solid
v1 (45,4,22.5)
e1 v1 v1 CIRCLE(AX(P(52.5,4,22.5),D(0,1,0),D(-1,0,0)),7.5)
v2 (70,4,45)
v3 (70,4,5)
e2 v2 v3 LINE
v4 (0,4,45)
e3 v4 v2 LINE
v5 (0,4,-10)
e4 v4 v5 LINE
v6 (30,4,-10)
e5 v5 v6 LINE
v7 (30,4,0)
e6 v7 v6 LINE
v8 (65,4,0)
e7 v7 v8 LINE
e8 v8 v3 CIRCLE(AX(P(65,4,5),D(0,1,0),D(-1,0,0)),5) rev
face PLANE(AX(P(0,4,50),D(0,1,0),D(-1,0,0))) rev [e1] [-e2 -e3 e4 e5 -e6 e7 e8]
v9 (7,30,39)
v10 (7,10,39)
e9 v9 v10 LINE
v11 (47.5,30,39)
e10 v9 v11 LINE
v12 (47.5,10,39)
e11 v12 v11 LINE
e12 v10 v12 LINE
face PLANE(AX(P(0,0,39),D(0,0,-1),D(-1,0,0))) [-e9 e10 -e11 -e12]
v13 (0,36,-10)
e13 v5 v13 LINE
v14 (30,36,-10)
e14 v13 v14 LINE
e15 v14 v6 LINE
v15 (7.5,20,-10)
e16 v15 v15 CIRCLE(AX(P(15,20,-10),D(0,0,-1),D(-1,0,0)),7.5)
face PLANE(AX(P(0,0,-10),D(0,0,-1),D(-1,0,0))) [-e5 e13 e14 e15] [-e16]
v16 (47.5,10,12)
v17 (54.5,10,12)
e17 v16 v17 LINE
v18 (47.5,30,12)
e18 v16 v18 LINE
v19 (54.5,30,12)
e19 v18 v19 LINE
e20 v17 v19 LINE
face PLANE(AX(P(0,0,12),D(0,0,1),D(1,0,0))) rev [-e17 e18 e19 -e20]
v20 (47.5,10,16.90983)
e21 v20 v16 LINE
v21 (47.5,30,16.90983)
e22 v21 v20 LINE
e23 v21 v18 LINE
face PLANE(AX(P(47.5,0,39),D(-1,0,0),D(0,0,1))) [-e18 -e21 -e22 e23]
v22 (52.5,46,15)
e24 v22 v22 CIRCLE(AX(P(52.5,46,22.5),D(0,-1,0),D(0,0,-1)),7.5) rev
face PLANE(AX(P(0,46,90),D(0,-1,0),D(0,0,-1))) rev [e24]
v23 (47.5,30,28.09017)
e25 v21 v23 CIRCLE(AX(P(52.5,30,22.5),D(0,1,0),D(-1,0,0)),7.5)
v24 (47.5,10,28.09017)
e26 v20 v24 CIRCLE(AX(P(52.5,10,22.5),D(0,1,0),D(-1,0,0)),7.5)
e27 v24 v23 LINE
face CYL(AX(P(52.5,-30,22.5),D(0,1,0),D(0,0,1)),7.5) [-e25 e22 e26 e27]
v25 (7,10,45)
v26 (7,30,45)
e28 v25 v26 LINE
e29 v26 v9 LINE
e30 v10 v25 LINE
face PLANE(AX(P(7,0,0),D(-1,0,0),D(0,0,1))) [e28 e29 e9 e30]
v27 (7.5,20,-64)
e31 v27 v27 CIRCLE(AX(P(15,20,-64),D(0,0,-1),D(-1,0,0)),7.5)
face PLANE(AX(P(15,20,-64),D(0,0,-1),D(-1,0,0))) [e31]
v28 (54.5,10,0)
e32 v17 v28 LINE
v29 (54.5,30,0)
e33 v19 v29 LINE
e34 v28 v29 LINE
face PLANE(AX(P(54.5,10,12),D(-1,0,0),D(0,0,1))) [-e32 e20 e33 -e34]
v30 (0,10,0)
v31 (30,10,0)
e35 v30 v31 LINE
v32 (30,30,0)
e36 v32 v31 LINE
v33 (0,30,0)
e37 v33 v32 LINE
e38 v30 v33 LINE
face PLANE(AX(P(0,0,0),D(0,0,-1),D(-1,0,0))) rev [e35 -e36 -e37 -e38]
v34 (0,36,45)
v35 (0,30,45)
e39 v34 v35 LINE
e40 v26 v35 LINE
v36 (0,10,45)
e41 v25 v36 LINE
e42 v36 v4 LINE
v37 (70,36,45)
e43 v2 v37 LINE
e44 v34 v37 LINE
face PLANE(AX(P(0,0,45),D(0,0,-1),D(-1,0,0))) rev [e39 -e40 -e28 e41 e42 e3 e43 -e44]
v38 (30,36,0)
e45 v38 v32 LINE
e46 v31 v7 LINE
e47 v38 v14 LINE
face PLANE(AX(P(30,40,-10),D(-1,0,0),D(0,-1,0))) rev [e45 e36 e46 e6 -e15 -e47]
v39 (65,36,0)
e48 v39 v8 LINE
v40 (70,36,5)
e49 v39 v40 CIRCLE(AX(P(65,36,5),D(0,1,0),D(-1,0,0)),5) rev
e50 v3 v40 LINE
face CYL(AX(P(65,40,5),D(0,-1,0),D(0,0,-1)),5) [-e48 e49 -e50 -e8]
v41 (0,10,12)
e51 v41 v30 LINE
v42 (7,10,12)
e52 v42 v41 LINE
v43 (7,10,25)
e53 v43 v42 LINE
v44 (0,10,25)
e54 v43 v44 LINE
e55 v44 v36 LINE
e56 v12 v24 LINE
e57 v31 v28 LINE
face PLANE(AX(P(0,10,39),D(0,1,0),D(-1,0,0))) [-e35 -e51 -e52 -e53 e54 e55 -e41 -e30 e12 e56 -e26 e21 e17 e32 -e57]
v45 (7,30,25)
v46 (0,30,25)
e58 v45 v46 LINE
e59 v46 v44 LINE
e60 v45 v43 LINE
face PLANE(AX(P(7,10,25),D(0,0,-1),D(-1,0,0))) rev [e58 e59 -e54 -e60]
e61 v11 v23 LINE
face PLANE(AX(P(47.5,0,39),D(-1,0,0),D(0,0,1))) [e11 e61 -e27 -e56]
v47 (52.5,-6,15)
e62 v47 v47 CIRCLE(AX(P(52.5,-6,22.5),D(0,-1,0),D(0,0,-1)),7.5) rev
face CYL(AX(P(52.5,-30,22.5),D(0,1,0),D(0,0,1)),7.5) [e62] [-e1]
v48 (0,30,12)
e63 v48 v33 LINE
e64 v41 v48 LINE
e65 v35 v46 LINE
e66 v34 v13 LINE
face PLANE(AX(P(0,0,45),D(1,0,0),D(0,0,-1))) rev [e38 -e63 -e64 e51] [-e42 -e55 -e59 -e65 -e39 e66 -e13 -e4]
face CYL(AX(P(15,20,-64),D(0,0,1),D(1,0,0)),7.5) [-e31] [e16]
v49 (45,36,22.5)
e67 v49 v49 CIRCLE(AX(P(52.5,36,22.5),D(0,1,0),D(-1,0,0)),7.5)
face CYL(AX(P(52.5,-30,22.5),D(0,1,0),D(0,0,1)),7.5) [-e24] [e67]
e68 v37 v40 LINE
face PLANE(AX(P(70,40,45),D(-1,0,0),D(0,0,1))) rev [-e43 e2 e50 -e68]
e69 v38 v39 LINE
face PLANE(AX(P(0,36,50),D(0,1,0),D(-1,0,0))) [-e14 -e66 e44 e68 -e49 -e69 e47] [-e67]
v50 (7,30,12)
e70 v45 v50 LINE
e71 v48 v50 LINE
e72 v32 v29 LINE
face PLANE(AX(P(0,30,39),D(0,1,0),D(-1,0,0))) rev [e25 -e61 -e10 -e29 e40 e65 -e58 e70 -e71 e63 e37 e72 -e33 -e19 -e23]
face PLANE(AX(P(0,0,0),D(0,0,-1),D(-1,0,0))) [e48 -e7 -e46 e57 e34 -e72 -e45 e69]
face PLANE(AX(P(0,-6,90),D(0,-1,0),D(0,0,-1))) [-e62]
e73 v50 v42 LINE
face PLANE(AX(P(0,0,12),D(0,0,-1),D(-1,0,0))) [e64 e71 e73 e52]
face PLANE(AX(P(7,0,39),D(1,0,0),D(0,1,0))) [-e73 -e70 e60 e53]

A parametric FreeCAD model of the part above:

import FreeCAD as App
import Part
import Sketcher
from FreeCAD import Vector


def edges_at(feature, points):
    """Names of the edges that pass closest to the given points."""
    edges = feature.Shape.Edges
    near = lambda p: min(range(len(edges)), key=lambda i: edges[i].distToShape(Part.Vertex(*p))[0])
    return sorted({f"Edge{near(p) + 1}" for p in points})

doc = App.newDocument("Part")
body = doc.addObject("PartDesign::Body", "Body")
body.AllowCompound = True

# Sketch on XY plane
sketch1 = body.newObject("Sketcher::SketchObject", "Sketch")
sketch1.AttachmentSupport = (doc.getObject("XY_Plane"), [""])
sketch1.MapMode = "FlatFace"
sketch1.addGeometry(Part.LineSegment(Vector(0, 40, 0), Vector(0, 0, 0)), False)
sketch1.addGeometry(Part.LineSegment(Vector(0, 0, 0), Vector(70, 0, 0)), False)
sketch1.addGeometry(Part.LineSegment(Vector(70, 0, 0), Vector(70, 40, 0)), False)
sketch1.addGeometry(Part.LineSegment(Vector(70, 40, 0), Vector(0, 40, 0)), False)
sketch1.addConstraint(Sketcher.Constraint("Coincident", 0, 2, 1, 1))
sketch1.addConstraint(Sketcher.Constraint("Coincident", 1, 2, 2, 1))
sketch1.addConstraint(Sketcher.Constraint("Coincident", 2, 2, 3, 1))
sketch1.addConstraint(Sketcher.Constraint("Coincident", 3, 2, 0, 1))
sketch1.addConstraint(Sketcher.Constraint("Vertical", 0))
sketch1.addConstraint(Sketcher.Constraint("Horizontal", 1))
sketch1.addConstraint(Sketcher.Constraint("Vertical", 2))
sketch1.addConstraint(Sketcher.Constraint("Horizontal", 3))
sketch1.addConstraint(Sketcher.Constraint("Coincident", 0, 2, -1, 1))
sketch1.addConstraint(Sketcher.Constraint("DistanceX", 1, 1, 1, 2, 70.0))
sketch1.addConstraint(Sketcher.Constraint("DistanceY", 0, 2, 0, 1, 40.0))
pad1 = body.newObject("PartDesign::Pad", "Pad")
pad1.Profile = sketch1
pad1.Length = 45

# Sketch on XY plane
sketch2 = body.newObject("Sketcher::SketchObject", "Sketch001")
sketch2.AttachmentSupport = (doc.getObject("XY_Plane"), [""])
sketch2.MapMode = "FlatFace"
sketch2.addGeometry(Part.LineSegment(Vector(48, 30, 0), Vector(48, 10, 0)), False)
sketch2.addGeometry(Part.LineSegment(Vector(48, 10, 0), Vector(7, 10, 0)), False)
sketch2.addGeometry(Part.LineSegment(Vector(7, 10, 0), Vector(7, 30, 0)), False)
sketch2.addGeometry(Part.LineSegment(Vector(7, 30, 0), Vector(48, 30, 0)), False)
sketch2.addConstraint(Sketcher.Constraint("Coincident", 0, 2, 1, 1))
sketch2.addConstraint(Sketcher.Constraint("Coincident", 1, 2, 2, 1))
sketch2.addConstraint(Sketcher.Constraint("Coincident", 2, 2, 3, 1))
sketch2.addConstraint(Sketcher.Constraint("Coincident", 3, 2, 0, 1))
sketch2.addConstraint(Sketcher.Constraint("Vertical", 0))
sketch2.addConstraint(Sketcher.Constraint("Horizontal", 1))
sketch2.addConstraint(Sketcher.Constraint("Vertical", 2))
sketch2.addConstraint(Sketcher.Constraint("Horizontal", 3))
sketch2.addConstraint(Sketcher.Constraint("DistanceY", 0, 2, 0, 1, 20.0))
sketch2.addConstraint(Sketcher.Constraint("DistanceX", 1, 2, 1, 1, 40.5))
sketch2.addConstraint(Sketcher.Constraint("DistanceY", -1, 1, 0, 2, 10.0))
sketch2.addConstraint(Sketcher.Constraint("DistanceX", -1, 1, 1, 2, 7.0))
pocket1 = body.newObject("PartDesign::Pocket", "Pocket")
pocket1.Profile = sketch2
pocket1.Length = 39
pocket1.Reversed = True

# Sketch on XY plane
sketch3 = body.newObject("Sketcher::SketchObject", "Sketch002")
sketch3.AttachmentSupport = (doc.getObject("XY_Plane"), [""])
sketch3.MapMode = "FlatFace"
sketch3.addGeometry(Part.LineSegment(Vector(7, 30, 0), Vector(7, 10, 0)), False)
sketch3.addGeometry(Part.LineSegment(Vector(7, 10, 0), Vector(0, 10, 0)), False)
sketch3.addGeometry(Part.LineSegment(Vector(0, 10, 0), Vector(0, 30, 0)), False)
sketch3.addGeometry(Part.LineSegment(Vector(0, 30, 0), Vector(7, 30, 0)), False)
sketch3.addGeometry(Part.LineSegment(Vector(54, 30, 0), Vector(54, 10, 0)), False)
sketch3.addGeometry(Part.LineSegment(Vector(54, 10, 0), Vector(48, 10, 0)), False)
sketch3.addGeometry(Part.LineSegment(Vector(48, 10, 0), Vector(48, 30, 0)), False)
sketch3.addGeometry(Part.LineSegment(Vector(48, 30, 0), Vector(54, 30, 0)), False)
sketch3.addConstraint(Sketcher.Constraint("Coincident", 0, 2, 1, 1))
sketch3.addConstraint(Sketcher.Constraint("Coincident", 1, 2, 2, 1))
sketch3.addConstraint(Sketcher.Constraint("Coincident", 2, 2, 3, 1))
sketch3.addConstraint(Sketcher.Constraint("Coincident", 3, 2, 0, 1))
sketch3.addConstraint(Sketcher.Constraint("Coincident", 4, 2, 5, 1))
sketch3.addConstraint(Sketcher.Constraint("Coincident", 5, 2, 6, 1))
sketch3.addConstraint(Sketcher.Constraint("Coincident", 6, 2, 7, 1))
sketch3.addConstraint(Sketcher.Constraint("Coincident", 7, 2, 4, 1))
sketch3.addConstraint(Sketcher.Constraint("Vertical", 0))
sketch3.addConstraint(Sketcher.Constraint("Horizontal", 1))
sketch3.addConstraint(Sketcher.Constraint("Vertical", 2))
sketch3.addConstraint(Sketcher.Constraint("Horizontal", 3))
sketch3.addConstraint(Sketcher.Constraint("Vertical", 4))
sketch3.addConstraint(Sketcher.Constraint("Horizontal", 5))
sketch3.addConstraint(Sketcher.Constraint("Vertical", 6))
sketch3.addConstraint(Sketcher.Constraint("Horizontal", 7))
sketch3.addConstraint(Sketcher.Constraint("PointOnObject", 1, 2, -2))
sketch3.addConstraint(Sketcher.Constraint("Horizontal", 1, 2, 4, 2))
sketch3.addConstraint(Sketcher.Constraint("Horizontal", 3, 2, 6, 2))
sketch3.addConstraint(Sketcher.Constraint("Equal", 3, 5))
sketch3.addConstraint(Sketcher.Constraint("DistanceX", 1, 2, 1, 1, 7.0))
sketch3.addConstraint(Sketcher.Constraint("DistanceY", 0, 2, 0, 1, 20.0))
sketch3.addConstraint(Sketcher.Constraint("DistanceY", -1, 1, 0, 2, 10.0))
sketch3.addConstraint(Sketcher.Constraint("DistanceX", -1, 1, 4, 2, 54.5))
pocket2 = body.newObject("PartDesign::Pocket", "Pocket001")
pocket2.Profile = sketch3
pocket2.Length = 12
pocket2.Reversed = True

# Sketch on YZ plane
sketch4 = body.newObject("Sketcher::SketchObject", "Sketch003")
sketch4.AttachmentSupport = (doc.getObject("YZ_Plane"), [""])
sketch4.MapMode = "FlatFace"
sketch4.addGeometry(Part.LineSegment(Vector(30, 25, 0), Vector(10, 25, 0)), False)
sketch4.addGeometry(Part.LineSegment(Vector(10, 25, 0), Vector(10, 45, 0)), False)
sketch4.addGeometry(Part.LineSegment(Vector(10, 45, 0), Vector(30, 45, 0)), False)
sketch4.addGeometry(Part.LineSegment(Vector(30, 45, 0), Vector(30, 25, 0)), False)
sketch4.addConstraint(Sketcher.Constraint("Coincident", 0, 2, 1, 1))
sketch4.addConstraint(Sketcher.Constraint("Coincident", 1, 2, 2, 1))
sketch4.addConstraint(Sketcher.Constraint("Coincident", 2, 2, 3, 1))
sketch4.addConstraint(Sketcher.Constraint("Coincident", 3, 2, 0, 1))
sketch4.addConstraint(Sketcher.Constraint("Horizontal", 0))
sketch4.addConstraint(Sketcher.Constraint("Vertical", 1))
sketch4.addConstraint(Sketcher.Constraint("Horizontal", 2))
sketch4.addConstraint(Sketcher.Constraint("Vertical", 3))
sketch4.addConstraint(Sketcher.Constraint("Equal", 2, 1))
sketch4.addConstraint(Sketcher.Constraint("DistanceX", 0, 2, 0, 1, 20.0))
sketch4.addConstraint(Sketcher.Constraint("DistanceX", -1, 1, 0, 2, 10.0))
sketch4.addConstraint(Sketcher.Constraint("DistanceY", -1, 1, 0, 2, 25.0))
pocket3 = body.newObject("PartDesign::Pocket", "Pocket002")
pocket3.Profile = sketch4
pocket3.Length = 7
pocket3.Reversed = True

# Sketch on XZ plane
sketch5 = body.newObject("Sketcher::SketchObject", "Sketch004")
sketch5.AttachmentSupport = (doc.getObject("XZ_Plane"), [""])
sketch5.MapMode = "FlatFace"
sketch5.AttachmentOffset = App.Placement(Vector(0, 0, -40), App.Rotation())
sketch5.addGeometry(Part.Circle(Vector(52, 22, 0), Vector(0, 0, 1), 8), False)
sketch5.addConstraint(Sketcher.Constraint("Diameter", 0, 15.0))
sketch5.addConstraint(Sketcher.Constraint("DistanceX", -1, 1, 0, 3, 52.5))
sketch5.addConstraint(Sketcher.Constraint("DistanceY", -1, 1, 0, 3, 22.5))
pad2 = body.newObject("PartDesign::Pad", "Pad001")
pad2.Profile = sketch5
pad2.Length = 30
pad2.Reversed = True

# Sketch on XZ plane
sketch6 = body.newObject("Sketcher::SketchObject", "Sketch005")
sketch6.AttachmentSupport = (doc.getObject("XZ_Plane"), [""])
sketch6.MapMode = "FlatFace"
sketch6.addGeometry(Part.Circle(Vector(52, 22, 0), Vector(0, 0, 1), 8), False)
sketch6.addConstraint(Sketcher.Constraint("Diameter", 0, 15.0))
sketch6.addConstraint(Sketcher.Constraint("DistanceX", -1, 1, 0, 3, 52.5))
sketch6.addConstraint(Sketcher.Constraint("DistanceY", -1, 1, 0, 3, 22.5))
pad3 = body.newObject("PartDesign::Pad", "Pad002")
pad3.Profile = sketch6
pad3.Length = 30

# Sketch on XY plane
sketch7 = body.newObject("Sketcher::SketchObject", "Sketch006")
sketch7.AttachmentSupport = (doc.getObject("XY_Plane"), [""])
sketch7.MapMode = "FlatFace"
sketch7.addGeometry(Part.LineSegment(Vector(30, 40, 0), Vector(30, 0, 0)), False)
sketch7.addGeometry(Part.LineSegment(Vector(30, 0, 0), Vector(0, 0, 0)), False)
sketch7.addGeometry(Part.LineSegment(Vector(0, 0, 0), Vector(0, 40, 0)), False)
sketch7.addGeometry(Part.LineSegment(Vector(0, 40, 0), Vector(30, 40, 0)), False)
sketch7.addConstraint(Sketcher.Constraint("Coincident", 0, 2, 1, 1))
sketch7.addConstraint(Sketcher.Constraint("Coincident", 1, 2, 2, 1))
sketch7.addConstraint(Sketcher.Constraint("Coincident", 2, 2, 3, 1))
sketch7.addConstraint(Sketcher.Constraint("Coincident", 3, 2, 0, 1))
sketch7.addConstraint(Sketcher.Constraint("Vertical", 0))
sketch7.addConstraint(Sketcher.Constraint("Horizontal", 1))
sketch7.addConstraint(Sketcher.Constraint("Vertical", 2))
sketch7.addConstraint(Sketcher.Constraint("Horizontal", 3))
sketch7.addConstraint(Sketcher.Constraint("Coincident", 1, 2, -1, 1))
sketch7.addConstraint(Sketcher.Constraint("DistanceX", 1, 2, 1, 1, 30.0))
sketch7.addConstraint(Sketcher.Constraint("DistanceY", 0, 2, 0, 1, 40.0))
pad4 = body.newObject("PartDesign::Pad", "Pad003")
pad4.Profile = sketch7
pad4.Length = 10
pad4.Reversed = True

# Sketch on XY plane
sketch8 = body.newObject("Sketcher::SketchObject", "Sketch007")
sketch8.AttachmentSupport = (doc.getObject("XY_Plane"), [""])
sketch8.MapMode = "FlatFace"
sketch8.AttachmentOffset = App.Placement(Vector(0, 0, -10), App.Rotation())
sketch8.addGeometry(Part.Circle(Vector(15, 20, 0), Vector(0, 0, 1), 8), False)
sketch8.addConstraint(Sketcher.Constraint("Diameter", 0, 15.0))
sketch8.addConstraint(Sketcher.Constraint("DistanceX", -1, 1, 0, 3, 15.0))
sketch8.addConstraint(Sketcher.Constraint("DistanceY", -1, 1, 0, 3, 20.0))
pad5 = body.newObject("PartDesign::Pad", "Pad004")
pad5.Profile = sketch8
pad5.Length = 54
pad5.Reversed = True
doc.recompute()

fillet = body.newObject("PartDesign::Fillet", "Fillet")
fillet.Base = (pad5, edges_at(pad5, [(70, 20, 0)]))
fillet.Radius = 5

# Sketch on XY plane
sketch9 = body.newObject("Sketcher::SketchObject", "Sketch008")
sketch9.AttachmentSupport = (doc.getObject("XY_Plane"), [""])
sketch9.MapMode = "FlatFace"
sketch9.AttachmentOffset = App.Placement(Vector(0, 0, -10), App.Rotation())
sketch9.addGeometry(Part.LineSegment(Vector(72.2, 4, 0), Vector(72.2, 0, 0)), False)
sketch9.addGeometry(Part.LineSegment(Vector(72.2, 0, 0), Vector(0, 0, 0)), False)
sketch9.addGeometry(Part.LineSegment(Vector(0, 0, 0), Vector(0, 4, 0)), False)
sketch9.addGeometry(Part.LineSegment(Vector(0, 4, 0), Vector(72.2, 4, 0)), False)
sketch9.addGeometry(Part.LineSegment(Vector(72.2, 40, 0), Vector(72.2, 36, 0)), False)
sketch9.addGeometry(Part.LineSegment(Vector(72.2, 36, 0), Vector(0, 36, 0)), False)
sketch9.addGeometry(Part.LineSegment(Vector(0, 36, 0), Vector(0, 40, 0)), False)
sketch9.addGeometry(Part.LineSegment(Vector(0, 40, 0), Vector(72.2, 40, 0)), False)
sketch9.addConstraint(Sketcher.Constraint("Coincident", 0, 2, 1, 1))
sketch9.addConstraint(Sketcher.Constraint("Coincident", 1, 2, 2, 1))
sketch9.addConstraint(Sketcher.Constraint("Coincident", 2, 2, 3, 1))
sketch9.addConstraint(Sketcher.Constraint("Coincident", 3, 2, 0, 1))
sketch9.addConstraint(Sketcher.Constraint("Coincident", 4, 2, 5, 1))
sketch9.addConstraint(Sketcher.Constraint("Coincident", 5, 2, 6, 1))
sketch9.addConstraint(Sketcher.Constraint("Coincident", 6, 2, 7, 1))
sketch9.addConstraint(Sketcher.Constraint("Coincident", 7, 2, 4, 1))
sketch9.addConstraint(Sketcher.Constraint("Vertical", 0))
sketch9.addConstraint(Sketcher.Constraint("Horizontal", 1))
sketch9.addConstraint(Sketcher.Constraint("Vertical", 2))
sketch9.addConstraint(Sketcher.Constraint("Horizontal", 3))
sketch9.addConstraint(Sketcher.Constraint("Vertical", 4))
sketch9.addConstraint(Sketcher.Constraint("Horizontal", 5))
sketch9.addConstraint(Sketcher.Constraint("Vertical", 6))
sketch9.addConstraint(Sketcher.Constraint("Horizontal", 7))
sketch9.addConstraint(Sketcher.Constraint("Coincident", 1, 2, -1, 1))
sketch9.addConstraint(Sketcher.Constraint("PointOnObject", 5, 2, -2))
sketch9.addConstraint(Sketcher.Constraint("Vertical", 3, 2, 4, 2))
sketch9.addConstraint(Sketcher.Constraint("Equal", 2, 4))
sketch9.addConstraint(Sketcher.Constraint("DistanceY", 0, 2, 0, 1, 4.0))
sketch9.addConstraint(Sketcher.Constraint("DistanceY", -1, 1, 4, 2, 36.0))
sketch9.addConstraint(Sketcher.Constraint("DistanceX", 1, 2, 1, 1, 72.231434))
pocket4 = body.newObject("PartDesign::Pocket", "Pocket003")
pocket4.Profile = sketch9
pocket4.Length = 60
pocket4.Reversed = True

# Sketch on XZ plane
sketch10 = body.newObject("Sketcher::SketchObject", "Sketch009")
sketch10.AttachmentSupport = (doc.getObject("XZ_Plane"), [""])
sketch10.MapMode = "FlatFace"
sketch10.AttachmentOffset = App.Placement(Vector(0, 0, -70), App.Rotation())
sketch10.addGeometry(Part.Circle(Vector(52, 22, 0), Vector(0, 0, 1), 8), False)
sketch10.addConstraint(Sketcher.Constraint("Diameter", 0, 15.0))
sketch10.addConstraint(Sketcher.Constraint("DistanceX", -1, 1, 0, 3, 52.5))
sketch10.addConstraint(Sketcher.Constraint("DistanceY", -1, 1, 0, 3, 22.5))
pad6 = body.newObject("PartDesign::Pad", "Pad005")
pad6.Profile = sketch10
pad6.Length = 100

# Sketch on XY plane
sketch11 = body.newObject("Sketcher::SketchObject", "Sketch010")
sketch11.AttachmentSupport = (doc.getObject("XY_Plane"), [""])
sketch11.MapMode = "FlatFace"
sketch11.AttachmentOffset = App.Placement(Vector(0, 0, -10), App.Rotation())
sketch11.addGeometry(Part.LineSegment(Vector(76, -6, 0), Vector(76, -46, 0)), False)
sketch11.addGeometry(Part.LineSegment(Vector(76, -46, 0), Vector(0, -46, 0)), False)
sketch11.addGeometry(Part.LineSegment(Vector(0, -46, 0), Vector(0, -6, 0)), False)
sketch11.addGeometry(Part.LineSegment(Vector(0, -6, 0), Vector(76, -6, 0)), False)
sketch11.addGeometry(Part.LineSegment(Vector(76, 86, 0), Vector(76, 46, 0)), False)
sketch11.addGeometry(Part.LineSegment(Vector(76, 46, 0), Vector(0, 46, 0)), False)
sketch11.addGeometry(Part.LineSegment(Vector(0, 46, 0), Vector(0, 86, 0)), False)
sketch11.addGeometry(Part.LineSegment(Vector(0, 86, 0), Vector(76, 86, 0)), False)
sketch11.addConstraint(Sketcher.Constraint("Coincident", 0, 2, 1, 1))
sketch11.addConstraint(Sketcher.Constraint("Coincident", 1, 2, 2, 1))
sketch11.addConstraint(Sketcher.Constraint("Coincident", 2, 2, 3, 1))
sketch11.addConstraint(Sketcher.Constraint("Coincident", 3, 2, 0, 1))
sketch11.addConstraint(Sketcher.Constraint("Coincident", 4, 2, 5, 1))
sketch11.addConstraint(Sketcher.Constraint("Coincident", 5, 2, 6, 1))
sketch11.addConstraint(Sketcher.Constraint("Coincident", 6, 2, 7, 1))
sketch11.addConstraint(Sketcher.Constraint("Coincident", 7, 2, 4, 1))
sketch11.addConstraint(Sketcher.Constraint("Vertical", 0))
sketch11.addConstraint(Sketcher.Constraint("Horizontal", 1))
sketch11.addConstraint(Sketcher.Constraint("Vertical", 2))
sketch11.addConstraint(Sketcher.Constraint("Horizontal", 3))
sketch11.addConstraint(Sketcher.Constraint("Vertical", 4))
sketch11.addConstraint(Sketcher.Constraint("Horizontal", 5))
sketch11.addConstraint(Sketcher.Constraint("Vertical", 6))
sketch11.addConstraint(Sketcher.Constraint("Horizontal", 7))
sketch11.addConstraint(Sketcher.Constraint("PointOnObject", 1, 2, -2))
sketch11.addConstraint(Sketcher.Constraint("PointOnObject", 5, 2, -2))
sketch11.addConstraint(Sketcher.Constraint("Vertical", 3, 2, 4, 2))
sketch11.addConstraint(Sketcher.Constraint("Equal", 2, 4))
sketch11.addConstraint(Sketcher.Constraint("DistanceY", 2, 2, -1, 1, 6.0))
sketch11.addConstraint(Sketcher.Constraint("DistanceY", -1, 1, 4, 2, 46.0))
sketch11.addConstraint(Sketcher.Constraint("DistanceX", 1, 2, 1, 1, 75.549854))
sketch11.addConstraint(Sketcher.Constraint("DistanceY", 0, 2, 0, 1, 40.129267))
pocket5 = body.newObject("PartDesign::Pocket", "Pocket004")
pocket5.Profile = sketch11
pocket5.Length = 100
pocket5.Reversed = True

doc.recompute()
